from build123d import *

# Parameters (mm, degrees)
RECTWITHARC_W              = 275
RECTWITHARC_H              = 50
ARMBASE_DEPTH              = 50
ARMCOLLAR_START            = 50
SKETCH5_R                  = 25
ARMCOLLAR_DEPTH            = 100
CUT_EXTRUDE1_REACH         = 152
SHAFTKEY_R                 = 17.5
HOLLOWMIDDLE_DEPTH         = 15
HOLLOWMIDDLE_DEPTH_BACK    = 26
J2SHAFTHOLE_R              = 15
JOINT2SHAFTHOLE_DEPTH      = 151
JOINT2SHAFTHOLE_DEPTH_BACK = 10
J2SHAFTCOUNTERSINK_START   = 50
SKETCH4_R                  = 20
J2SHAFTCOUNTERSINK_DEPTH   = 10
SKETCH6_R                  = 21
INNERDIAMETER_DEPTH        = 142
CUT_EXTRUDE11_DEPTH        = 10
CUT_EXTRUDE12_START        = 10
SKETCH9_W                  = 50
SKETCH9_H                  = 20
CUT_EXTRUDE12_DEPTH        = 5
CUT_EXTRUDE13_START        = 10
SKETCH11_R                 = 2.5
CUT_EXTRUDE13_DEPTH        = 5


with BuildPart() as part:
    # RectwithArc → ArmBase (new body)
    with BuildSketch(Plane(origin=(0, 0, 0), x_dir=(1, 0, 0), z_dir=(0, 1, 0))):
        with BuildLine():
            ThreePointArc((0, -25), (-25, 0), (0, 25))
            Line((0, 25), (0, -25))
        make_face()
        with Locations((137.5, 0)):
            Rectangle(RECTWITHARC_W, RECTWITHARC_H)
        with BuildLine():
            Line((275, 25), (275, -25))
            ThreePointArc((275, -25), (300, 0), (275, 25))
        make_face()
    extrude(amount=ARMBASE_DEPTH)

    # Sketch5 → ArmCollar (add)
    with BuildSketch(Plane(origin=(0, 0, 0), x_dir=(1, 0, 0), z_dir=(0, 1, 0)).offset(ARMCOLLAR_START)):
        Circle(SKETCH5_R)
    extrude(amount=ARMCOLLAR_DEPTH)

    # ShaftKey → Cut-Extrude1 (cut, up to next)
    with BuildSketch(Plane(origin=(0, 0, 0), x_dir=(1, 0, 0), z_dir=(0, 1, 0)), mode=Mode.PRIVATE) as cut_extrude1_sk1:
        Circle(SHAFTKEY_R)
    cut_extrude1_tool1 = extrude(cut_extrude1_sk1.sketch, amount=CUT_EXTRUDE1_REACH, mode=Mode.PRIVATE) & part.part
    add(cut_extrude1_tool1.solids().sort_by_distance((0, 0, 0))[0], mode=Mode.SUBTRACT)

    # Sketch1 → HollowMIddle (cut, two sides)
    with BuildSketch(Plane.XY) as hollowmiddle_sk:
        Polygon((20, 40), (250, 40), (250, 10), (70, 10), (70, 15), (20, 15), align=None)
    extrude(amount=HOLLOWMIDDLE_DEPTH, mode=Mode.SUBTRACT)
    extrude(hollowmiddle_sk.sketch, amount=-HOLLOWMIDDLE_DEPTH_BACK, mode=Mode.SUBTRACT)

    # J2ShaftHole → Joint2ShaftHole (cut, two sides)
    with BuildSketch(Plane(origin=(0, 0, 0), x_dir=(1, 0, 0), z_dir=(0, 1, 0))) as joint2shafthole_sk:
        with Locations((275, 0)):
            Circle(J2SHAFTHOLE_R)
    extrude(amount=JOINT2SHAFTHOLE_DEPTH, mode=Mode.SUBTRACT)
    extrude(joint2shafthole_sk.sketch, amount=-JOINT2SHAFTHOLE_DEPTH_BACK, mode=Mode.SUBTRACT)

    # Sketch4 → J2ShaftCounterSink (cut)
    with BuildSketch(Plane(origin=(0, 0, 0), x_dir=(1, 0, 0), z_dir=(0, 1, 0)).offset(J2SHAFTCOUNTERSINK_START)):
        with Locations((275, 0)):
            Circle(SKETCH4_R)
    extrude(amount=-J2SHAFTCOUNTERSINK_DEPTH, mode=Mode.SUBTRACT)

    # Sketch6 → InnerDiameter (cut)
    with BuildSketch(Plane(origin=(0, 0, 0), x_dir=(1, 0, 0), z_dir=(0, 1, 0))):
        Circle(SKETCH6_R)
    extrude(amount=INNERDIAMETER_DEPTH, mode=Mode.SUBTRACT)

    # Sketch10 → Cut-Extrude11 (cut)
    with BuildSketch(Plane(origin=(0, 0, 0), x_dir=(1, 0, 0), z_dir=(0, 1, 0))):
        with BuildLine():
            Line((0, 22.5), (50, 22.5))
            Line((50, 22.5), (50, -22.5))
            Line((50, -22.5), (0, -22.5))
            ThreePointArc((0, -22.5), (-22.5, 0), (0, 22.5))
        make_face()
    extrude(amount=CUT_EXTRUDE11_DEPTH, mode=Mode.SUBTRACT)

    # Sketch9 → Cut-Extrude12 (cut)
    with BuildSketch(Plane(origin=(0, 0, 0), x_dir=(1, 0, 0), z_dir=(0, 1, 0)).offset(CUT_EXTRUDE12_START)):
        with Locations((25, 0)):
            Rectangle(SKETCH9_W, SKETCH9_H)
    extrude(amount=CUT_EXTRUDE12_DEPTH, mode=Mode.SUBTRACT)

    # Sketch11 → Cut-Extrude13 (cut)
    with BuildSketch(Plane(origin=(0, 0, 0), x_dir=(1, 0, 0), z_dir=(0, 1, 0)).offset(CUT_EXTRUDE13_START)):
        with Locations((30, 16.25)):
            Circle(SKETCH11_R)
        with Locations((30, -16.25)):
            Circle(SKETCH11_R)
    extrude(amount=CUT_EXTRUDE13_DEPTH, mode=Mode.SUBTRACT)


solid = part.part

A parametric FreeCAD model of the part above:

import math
import FreeCAD as App
import Part
import Sketcher

doc = App.newDocument("Part")
body = doc.addObject("PartDesign::Body", "Body")

# Sketch on XZ plane
sketch1 = doc.addObject("Sketcher::SketchObject", "Sketch")
body.addObject(sketch1)
sketch1.AttachmentSupport = (doc.XZ_Plane, [""])
sketch1.MapMode = "FlatFace"
sketch1.addGeometry([
    Part.ArcOfCircle(Part.Circle(App.Vector(0, 0, 0), App.Vector(0, 0, 1), 25), math.radians(90), math.radians(270)),
    Part.LineSegment(App.Vector(0, 25, 0), App.Vector(275, 25, 0)),
    Part.ArcOfCircle(Part.Circle(App.Vector(275, 0, 0), App.Vector(0, 0, 1), 25), math.radians(-90), math.radians(90)),
    Part.LineSegment(App.Vector(275, -25, 0), App.Vector(0, -25, 0)),
], False)
sketch1.addConstraint([
    Sketcher.Constraint("Tangent", 0, 1, 1, 1),
    Sketcher.Constraint("Tangent", 1, 2, 2, 2),
    Sketcher.Constraint("Tangent", 2, 1, 3, 1),
    Sketcher.Constraint("Tangent", 3, 2, 0, 2),
    Sketcher.Constraint("Horizontal", 1),
    Sketcher.Constraint("Horizontal", 3),
    Sketcher.Constraint("Coincident", 0, 3, -1, 1),
    Sketcher.Constraint("Radius", 0, 25.0),
    Sketcher.Constraint("DistanceX", 1, 1, 1, 2, 275.0),
])
pad1 = doc.addObject("PartDesign::Pad", "Pad")
body.addObject(pad1)
pad1.Profile = sketch1
pad1.Length = 50
pad1.Reversed = True

# Sketch on XZ plane
sketch2 = doc.addObject("Sketcher::SketchObject", "Sketch001")
body.addObject(sketch2)
sketch2.AttachmentSupport = (doc.XZ_Plane, [""])
sketch2.MapMode = "FlatFace"
sketch2.AttachmentOffset = App.Placement(App.Vector(0, 0, -50), App.Rotation())
sketch2.addGeometry(Part.Circle(App.Vector(0, 0, 0), App.Vector(0, 0, 1), 25), False)
sketch2.addConstraint([
    Sketcher.Constraint("Coincident", 0, 3, -1, 1),
    Sketcher.Constraint("Diameter", 0, 50.0),
])
pad2 = doc.addObject("PartDesign::Pad", "Pad001")
body.addObject(pad2)
pad2.Profile = sketch2
pad2.Length = 100
pad2.Reversed = True

# Sketch on XZ plane
sketch3 = doc.addObject("Sketcher::SketchObject", "Sketch002")
body.addObject(sketch3)
sketch3.AttachmentSupport = (doc.XZ_Plane, [""])
sketch3.MapMode = "FlatFace"
sketch3.addGeometry(Part.Circle(App.Vector(0, 0, 0), App.Vector(0, 0, 1), 17.5), False)
sketch3.addConstraint([
    Sketcher.Constraint("Coincident", 0, 3, -1, 1),
    Sketcher.Constraint("Diameter", 0, 35.0),
])
pocket1 = doc.addObject("PartDesign::Pocket", "Pocket")
body.addObject(pocket1)
pocket1.Profile = sketch3
pocket1.Type = "UpToFirst"

# Sketch on XY plane
sketch4 = doc.addObject("Sketcher::SketchObject", "Sketch003")
body.addObject(sketch4)
sketch4.AttachmentSupport = (doc.XY_Plane, [""])
sketch4.MapMode = "FlatFace"
sketch4.addGeometry([
    Part.LineSegment(App.Vector(250, 40, 0), App.Vector(20, 40, 0)),  # 0
    Part.LineSegment(App.Vector(20, 40, 0), App.Vector(20, 15, 0)),  # 1
    Part.LineSegment(App.Vector(20, 15, 0), App.Vector(70, 15, 0)),  # 2
    Part.LineSegment(App.Vector(70, 15, 0), App.Vector(70, 10, 0)),  # 3
    Part.LineSegment(App.Vector(70, 10, 0), App.Vector(250, 10, 0)),  # 4
    Part.LineSegment(App.Vector(250, 10, 0), App.Vector(250, 40, 0)),  # 5
], False)
sketch4.addConstraint([
    Sketcher.Constraint("Coincident", 0, 2, 1, 1),
    Sketcher.Constraint("Coincident", 1, 2, 2, 1),
    Sketcher.Constraint("Coincident", 2, 2, 3, 1),
    Sketcher.Constraint("Coincident", 3, 2, 4, 1),
    Sketcher.Constraint("Coincident", 4, 2, 5, 1),
    Sketcher.Constraint("Coincident", 5, 2, 0, 1),
    Sketcher.Constraint("Horizontal", 0),
    Sketcher.Constraint("Vertical", 1),
    Sketcher.Constraint("Horizontal", 2),
    Sketcher.Constraint("Vertical", 3),
    Sketcher.Constraint("Horizontal", 4),
    Sketcher.Constraint("Vertical", 5),
    Sketcher.Constraint("DistanceX", 0, 2, 0, 1, 230.0),
    Sketcher.Constraint("DistanceX", 2, 1, 2, 2, 50.0),
    Sketcher.Constraint("DistanceY", 1, 2, 1, 1, 25.0),
    Sketcher.Constraint("DistanceY", 3, 2, 3, 1, 5.0),
    Sketcher.Constraint("DistanceX", -1, 1, 0, 2, 20.0),
    Sketcher.Constraint("DistanceY", -1, 1, 0, 2, 40.0),
])
pocket2 = doc.addObject("PartDesign::Pocket", "Pocket001")
body.addObject(pocket2)
pocket2.Profile = sketch4
pocket2.Type = "TwoLengths"
pocket2.Length = 15
pocket2.Length2 = 26
pocket2.Reversed = True

# Sketch on XZ plane
sketch5 = doc.addObject("Sketcher::SketchObject", "Sketch004")
body.addObject(sketch5)
sketch5.AttachmentSupport = (doc.XZ_Plane, [""])
sketch5.MapMode = "FlatFace"
sketch5.addGeometry(Part.Circle(App.Vector(275, 0, 0), App.Vector(0, 0, 1), 15), False)
sketch5.addConstraint([
    Sketcher.Constraint("PointOnObject", 0, 3, -1),
    Sketcher.Constraint("Diameter", 0, 30.0),
    Sketcher.Constraint("DistanceX", -1, 1, 0, 3, 275.0),
])
pocket3 = doc.addObject("PartDesign::Pocket", "Pocket002")
body.addObject(pocket3)
pocket3.Profile = sketch5
pocket3.Type = "ThroughAll"
pocket3.Midplane = True

# Sketch on XZ plane
sketch6 = doc.addObject("Sketcher::SketchObject", "Sketch005")
body.addObject(sketch6)
sketch6.AttachmentSupport = (doc.XZ_Plane, [""])
sketch6.MapMode = "FlatFace"
sketch6.AttachmentOffset = App.Placement(App.Vector(0, 0, -50), App.Rotation())
sketch6.addGeometry(Part.Circle(App.Vector(275, 0, 0), App.Vector(0, 0, 1), 20), False)
sketch6.addConstraint([
    Sketcher.Constraint("PointOnObject", 0, 3, -1),
    Sketcher.Constraint("Diameter", 0, 40.0),
    Sketcher.Constraint("DistanceX", -1, 1, 0, 3, 275.0),
])
pocket4 = doc.addObject("PartDesign::Pocket", "Pocket003")
body.addObject(pocket4)
pocket4.Profile = sketch6
pocket4.Length = 10
pocket4.Reversed = True

# Sketch on XZ plane
sketch7 = doc.addObject("Sketcher::SketchObject", "Sketch006")
body.addObject(sketch7)
sketch7.AttachmentSupport = (doc.XZ_Plane, [""])
sketch7.MapMode = "FlatFace"
sketch7.addGeometry(Part.Circle(App.Vector(0, 0, 0), App.Vector(0, 0, 1), 21), False)
sketch7.addConstraint([
    Sketcher.Constraint("Coincident", 0, 3, -1, 1),
    Sketcher.Constraint("Diameter", 0, 42.0),
])
pocket5 = doc.addObject("PartDesign::Pocket", "Pocket004")
body.addObject(pocket5)
pocket5.Profile = sketch7
pocket5.Length = 142

# Sketch on XZ plane
sketch8 = doc.addObject("Sketcher::SketchObject", "Sketch007")
body.addObject(sketch8)
sketch8.AttachmentSupport = (doc.XZ_Plane, [""])
sketch8.MapMode = "FlatFace"
sketch8.addGeometry([
    Part.LineSegment(App.Vector(50, -22.5, 0), App.Vector(0, -22.5, 0)),
    Part.ArcOfCircle(Part.Circle(App.Vector(0, 0, 0), App.Vector(0, 0, 1), 22.5), math.radians(90), math.radians(270)),
    Part.LineSegment(App.Vector(0, 22.5, 0), App.Vector(50, 22.5, 0)),
    Part.LineSegment(App.Vector(50, 22.5, 0), App.Vector(50, -22.5, 0)),
], False)
sketch8.addConstraint([
    Sketcher.Constraint("Tangent", 0, 2, 1, 2),
    Sketcher.Constraint("Tangent", 1, 1, 2, 1),
    Sketcher.Constraint("Coincident", 2, 2, 3, 1),
    Sketcher.Constraint("Coincident", 3, 2, 0, 1),
    Sketcher.Constraint("Horizontal", 0),
    Sketcher.Constraint("Horizontal", 2),
    Sketcher.Constraint("Vertical", 3),
    Sketcher.Constraint("Coincident", 1, 3, -1, 1),
    Sketcher.Constraint("Radius", 1, 22.5),
    Sketcher.Constraint("DistanceX", 0, 2, 0, 1, 50.0),
])
pocket6 = doc.addObject("PartDesign::Pocket", "Pocket005")
body.addObject(pocket6)
pocket6.Profile = sketch8
pocket6.Length = 10

# Sketch on XZ plane
sketch9 = doc.addObject("Sketcher::SketchObject", "Sketch008")
body.addObject(sketch9)
sketch9.AttachmentSupport = (doc.XZ_Plane, [""])
sketch9.MapMode = "FlatFace"
sketch9.AttachmentOffset = App.Placement(App.Vector(0, 0, -10), App.Rotation())
sketch9.addGeometry([
    Part.LineSegment(App.Vector(0, -10, 0), App.Vector(0, 10, 0)),
    Part.LineSegment(App.Vector(0, 10, 0), App.Vector(50, 10, 0)),
    Part.LineSegment(App.Vector(50, 10, 0), App.Vector(50, -10, 0)),
    Part.LineSegment(App.Vector(50, -10, 0), App.Vector(0, -10, 0)),
], False)
sketch9.addConstraint([
    Sketcher.Constraint("Coincident", 0, 2, 1, 1),
    Sketcher.Constraint("Coincident", 1, 2, 2, 1),
    Sketcher.Constraint("Coincident", 2, 2, 3, 1),
    Sketcher.Constraint("Coincident", 3, 2, 0, 1),
    Sketcher.Constraint("Vertical", 0),
    Sketcher.Constraint("Horizontal", 1),
    Sketcher.Constraint("Vertical", 2),
    Sketcher.Constraint("Horizontal", 3),
    Sketcher.Constraint("Symmetric", 0, 2, 3, 2, -1, 1),
    Sketcher.Constraint("DistanceX", 1, 1, 1, 2, 50.0),
    Sketcher.Constraint("DistanceY", 0, 1, 0, 2, 20.0),
])
pocket7 = doc.addObject("PartDesign::Pocket", "Pocket006")
body.addObject(pocket7)
pocket7.Profile = sketch9
pocket7.Length = 5

# Sketch on XZ plane
sketch10 = doc.addObject("Sketcher::SketchObject", "Sketch009")
body.addObject(sketch10)
sketch10.AttachmentSupport = (doc.XZ_Plane, [""])
sketch10.MapMode = "FlatFace"
sketch10.AttachmentOffset = App.Placement(App.Vector(0, 0, -10), App.Rotation())
sketch10.addGeometry([
    Part.Circle(App.Vector(30, -16.25, 0), App.Vector(0, 0, 1), 2.5),
    Part.Circle(App.Vector(30, 16.25, 0), App.Vector(0, 0, 1), 2.5),
], False)
sketch10.addConstraint([
    Sketcher.Constraint("Equal", 0, 1),
    Sketcher.Constraint("Symmetric", 0, 3, 1, 3, -1),
    Sketcher.Constraint("Diameter", 0, 5.0),
    Sketcher.Constraint("DistanceX", -1, 1, 0, 3, 30.0),
    Sketcher.Constraint("DistanceY", 0, 3, 1, 3, 32.5),
])
pocket8 = doc.addObject("PartDesign::Pocket", "Pocket007")
body.addObject(pocket8)
pocket8.Profile = sketch10
pocket8.Length = 5

doc.recompute()
